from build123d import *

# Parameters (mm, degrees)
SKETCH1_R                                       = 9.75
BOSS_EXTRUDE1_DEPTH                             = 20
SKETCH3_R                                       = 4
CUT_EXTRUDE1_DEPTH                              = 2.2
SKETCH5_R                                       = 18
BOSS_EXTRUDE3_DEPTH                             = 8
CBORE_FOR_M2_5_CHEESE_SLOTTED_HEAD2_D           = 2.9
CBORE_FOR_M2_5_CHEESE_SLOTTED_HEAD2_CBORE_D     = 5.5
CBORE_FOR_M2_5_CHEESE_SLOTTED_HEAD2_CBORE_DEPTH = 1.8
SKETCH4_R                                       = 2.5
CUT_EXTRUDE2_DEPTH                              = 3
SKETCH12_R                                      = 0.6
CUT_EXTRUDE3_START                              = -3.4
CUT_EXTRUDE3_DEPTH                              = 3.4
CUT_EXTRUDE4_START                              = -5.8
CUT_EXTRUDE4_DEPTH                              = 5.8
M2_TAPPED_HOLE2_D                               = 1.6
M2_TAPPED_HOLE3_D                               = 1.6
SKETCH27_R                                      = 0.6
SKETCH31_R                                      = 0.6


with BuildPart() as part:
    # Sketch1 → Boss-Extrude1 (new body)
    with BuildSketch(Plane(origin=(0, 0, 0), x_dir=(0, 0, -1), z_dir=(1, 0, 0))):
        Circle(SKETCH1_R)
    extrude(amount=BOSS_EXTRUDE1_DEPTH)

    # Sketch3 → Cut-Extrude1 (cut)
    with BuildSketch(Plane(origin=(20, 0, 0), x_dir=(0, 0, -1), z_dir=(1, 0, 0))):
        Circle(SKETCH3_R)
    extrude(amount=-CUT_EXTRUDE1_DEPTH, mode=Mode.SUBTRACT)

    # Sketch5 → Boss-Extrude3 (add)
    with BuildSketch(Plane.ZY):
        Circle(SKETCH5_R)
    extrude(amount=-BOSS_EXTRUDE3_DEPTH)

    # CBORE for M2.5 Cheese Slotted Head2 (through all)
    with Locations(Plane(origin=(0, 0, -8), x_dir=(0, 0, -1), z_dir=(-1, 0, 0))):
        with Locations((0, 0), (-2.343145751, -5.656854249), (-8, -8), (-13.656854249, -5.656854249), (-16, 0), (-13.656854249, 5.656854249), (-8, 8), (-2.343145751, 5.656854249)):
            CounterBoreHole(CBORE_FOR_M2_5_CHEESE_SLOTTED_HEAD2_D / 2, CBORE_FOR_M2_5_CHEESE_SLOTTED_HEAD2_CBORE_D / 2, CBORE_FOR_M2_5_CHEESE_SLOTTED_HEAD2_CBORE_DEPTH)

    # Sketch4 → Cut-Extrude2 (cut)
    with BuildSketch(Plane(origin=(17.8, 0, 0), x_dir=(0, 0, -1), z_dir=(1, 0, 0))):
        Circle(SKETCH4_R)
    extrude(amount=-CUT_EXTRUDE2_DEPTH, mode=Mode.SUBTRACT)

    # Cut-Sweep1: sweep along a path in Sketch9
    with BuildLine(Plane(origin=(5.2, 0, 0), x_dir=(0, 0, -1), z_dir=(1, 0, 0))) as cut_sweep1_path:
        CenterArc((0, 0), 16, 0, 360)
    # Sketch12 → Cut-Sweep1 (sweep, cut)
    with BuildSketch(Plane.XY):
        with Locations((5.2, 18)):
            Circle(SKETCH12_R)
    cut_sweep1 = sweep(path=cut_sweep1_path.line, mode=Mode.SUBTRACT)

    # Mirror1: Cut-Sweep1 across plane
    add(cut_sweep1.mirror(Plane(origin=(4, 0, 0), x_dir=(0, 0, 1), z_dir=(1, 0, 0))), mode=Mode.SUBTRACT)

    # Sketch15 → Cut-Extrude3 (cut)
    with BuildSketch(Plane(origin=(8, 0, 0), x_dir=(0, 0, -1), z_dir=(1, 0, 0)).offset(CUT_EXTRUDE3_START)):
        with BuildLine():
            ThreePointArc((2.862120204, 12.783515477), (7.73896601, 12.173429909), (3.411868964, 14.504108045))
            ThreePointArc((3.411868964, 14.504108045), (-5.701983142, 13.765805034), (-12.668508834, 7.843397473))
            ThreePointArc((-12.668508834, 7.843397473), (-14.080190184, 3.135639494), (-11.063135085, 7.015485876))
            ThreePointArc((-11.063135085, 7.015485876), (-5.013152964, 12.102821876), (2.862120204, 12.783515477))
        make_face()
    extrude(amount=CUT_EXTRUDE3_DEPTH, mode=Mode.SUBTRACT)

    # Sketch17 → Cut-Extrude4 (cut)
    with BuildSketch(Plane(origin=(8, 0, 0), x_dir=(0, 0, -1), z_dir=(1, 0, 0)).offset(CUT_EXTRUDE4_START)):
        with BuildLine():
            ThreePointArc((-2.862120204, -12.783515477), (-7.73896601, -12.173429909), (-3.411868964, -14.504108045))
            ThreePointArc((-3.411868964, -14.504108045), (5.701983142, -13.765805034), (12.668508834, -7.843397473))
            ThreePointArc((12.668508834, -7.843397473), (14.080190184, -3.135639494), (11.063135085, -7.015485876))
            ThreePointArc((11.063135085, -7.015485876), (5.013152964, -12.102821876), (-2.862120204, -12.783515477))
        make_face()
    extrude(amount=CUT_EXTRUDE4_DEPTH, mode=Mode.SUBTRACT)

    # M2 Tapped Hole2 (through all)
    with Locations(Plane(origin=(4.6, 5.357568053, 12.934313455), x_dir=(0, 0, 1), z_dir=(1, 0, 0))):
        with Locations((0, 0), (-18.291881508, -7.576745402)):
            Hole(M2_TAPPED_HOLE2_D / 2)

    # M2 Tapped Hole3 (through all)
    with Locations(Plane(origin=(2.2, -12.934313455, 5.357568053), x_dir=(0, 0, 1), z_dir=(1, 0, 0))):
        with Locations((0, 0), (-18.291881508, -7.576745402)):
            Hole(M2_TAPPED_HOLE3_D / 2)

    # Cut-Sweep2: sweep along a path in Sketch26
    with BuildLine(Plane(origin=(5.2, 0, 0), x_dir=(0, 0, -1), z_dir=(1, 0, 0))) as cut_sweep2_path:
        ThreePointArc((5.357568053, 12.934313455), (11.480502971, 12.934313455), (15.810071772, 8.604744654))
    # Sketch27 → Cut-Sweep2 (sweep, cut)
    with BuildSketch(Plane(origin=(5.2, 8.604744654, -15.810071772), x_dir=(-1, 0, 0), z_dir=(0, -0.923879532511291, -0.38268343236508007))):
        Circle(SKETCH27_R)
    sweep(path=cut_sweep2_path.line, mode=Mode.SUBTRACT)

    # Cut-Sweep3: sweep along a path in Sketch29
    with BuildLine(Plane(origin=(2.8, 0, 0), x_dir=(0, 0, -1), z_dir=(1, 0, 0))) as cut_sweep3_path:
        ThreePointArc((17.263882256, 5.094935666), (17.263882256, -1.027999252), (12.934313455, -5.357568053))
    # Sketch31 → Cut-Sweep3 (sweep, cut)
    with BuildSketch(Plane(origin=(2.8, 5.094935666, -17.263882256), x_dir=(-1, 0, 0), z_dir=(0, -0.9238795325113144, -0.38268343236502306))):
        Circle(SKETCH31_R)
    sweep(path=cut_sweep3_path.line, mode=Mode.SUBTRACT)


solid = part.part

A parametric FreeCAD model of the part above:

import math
import FreeCAD as App
import Part
import Sketcher
Q = App.Units.Quantity

doc = App.newDocument("Part")
body = doc.addObject("PartDesign::Body", "Body")

# Sketch on YZ plane
sketch1 = body.newObject("Sketcher::SketchObject", "Sketch")
sketch1.AttachmentSupport = (doc.getObject("YZ_Plane"), [""])
sketch1.MapMode = "FlatFace"
sketch1.addGeometry(Part.Circle(App.Vector(0, 0, 0), App.Vector(0, 0, 1), 10), False)
sketch1.addConstraint([
    Sketcher.Constraint("Coincident", 0, 3, -1, 1),
    Sketcher.Constraint("Diameter", 0, Q("19.5 mm")),
])
pad1 = body.newObject("PartDesign::Pad", "Pad")
pad1.Profile = sketch1
pad1.Length = 20

# Sketch on YZ plane
sketch2 = body.newObject("Sketcher::SketchObject", "Sketch001")
sketch2.AttachmentSupport = (doc.getObject("YZ_Plane"), [""])
sketch2.MapMode = "FlatFace"
sketch2.AttachmentOffset = App.Placement(App.Vector(0, 0, 20), App.Rotation())
sketch2.addGeometry(Part.Circle(App.Vector(0, 0, 0), App.Vector(0, 0, 1), 4), False)
sketch2.addConstraint([
    Sketcher.Constraint("Coincident", 0, 3, -1, 1),
    Sketcher.Constraint("Diameter", 0, Q("8 mm")),
])
pocket1 = body.newObject("PartDesign::Pocket", "Pocket")
pocket1.Profile = sketch2
pocket1.Length = 2.2

# Sketch on YZ plane
sketch3 = body.newObject("Sketcher::SketchObject", "Sketch002")
sketch3.AttachmentSupport = (doc.getObject("YZ_Plane"), [""])
sketch3.MapMode = "FlatFace"
sketch3.addGeometry(Part.Circle(App.Vector(0, 0, 0), App.Vector(0, 0, 1), 18), False)
sketch3.addConstraint([
    Sketcher.Constraint("Coincident", 0, 3, -1, 1),
    Sketcher.Constraint("Diameter", 0, Q("36 mm")),
])
pad2 = body.newObject("PartDesign::Pad", "Pad001")
pad2.Profile = sketch3
pad2.Length = 8

# Sketch on YZ plane
sketch4 = body.newObject("Sketcher::SketchObject", "Sketch003")
sketch4.AttachmentSupport = (doc.getObject("YZ_Plane"), [""])
sketch4.MapMode = "FlatFace"
sketch4.addGeometry([
    Part.Circle(App.Vector(0, -8, 0), App.Vector(0, 0, 1), 1.4),  # 0
    Part.Circle(App.Vector(5.7, -5.7, 0), App.Vector(0, 0, 1), 1.4),  # 1
    Part.Circle(App.Vector(8, 0, 0), App.Vector(0, 0, 1), 1.4),  # 2
    Part.Circle(App.Vector(5.7, 5.7, 0), App.Vector(0, 0, 1), 1.4),  # 3
    Part.Circle(App.Vector(0, 8, 0), App.Vector(0, 0, 1), 1.4),  # 4
    Part.Circle(App.Vector(-5.7, 5.7, 0), App.Vector(0, 0, 1), 1.4),  # 5
    Part.Circle(App.Vector(-8, 0, 0), App.Vector(0, 0, 1), 1.4),  # 6
    Part.Circle(App.Vector(-5.7, -5.7, 0), App.Vector(0, 0, 1), 1.4),  # 7
], False)
sketch4.addConstraint([
    Sketcher.Constraint("Equal", 0, 1),
    Sketcher.Constraint("Equal", 1, 2),
    Sketcher.Constraint("Equal", 2, 3),
    Sketcher.Constraint("Equal", 3, 4),
    Sketcher.Constraint("Equal", 4, 5),
    Sketcher.Constraint("Equal", 5, 6),
    Sketcher.Constraint("Equal", 6, 7),
    Sketcher.Constraint("Symmetric", 0, 3, 4, 3, -1, 1),
    Sketcher.Constraint("Symmetric", 1, 3, 5, 3, -1, 1),
    Sketcher.Constraint("Symmetric", 2, 3, 6, 3, -1, 1),
    Sketcher.Constraint("Symmetric", 3, 3, 7, 3, -1, 1),
    Sketcher.Constraint("Symmetric", 3, 3, 5, 3, -2),
    Sketcher.Constraint("PointOnObject", 0, 3, -2),
    Sketcher.Constraint("PointOnObject", 2, 3, -1),
    Sketcher.Constraint("Diameter", 0, Q("2.9 mm")),
    Sketcher.Constraint("DistanceY", 0, 3, -1, 1, Q("8 mm")),
    Sketcher.Constraint("DistanceX", -1, 1, 2, 3, Q("8 mm")),
    Sketcher.Constraint("DistanceY", 1, 3, 3, 3, Q("11.313708 mm")),
    Sketcher.Constraint("DistanceX", 5, 3, 3, 3, Q("11.313708 mm")),
])
doc.recompute()
hole = body.newObject("PartDesign::Hole", "Hole")
hole.Profile = sketch4
hole.ThreadType = "None"
hole.Diameter = 2.9
hole.DepthType = "ThroughAll"
hole.HoleCutType = "Counterbore"
hole.HoleCutDiameter = 5.5
hole.HoleCutDepth = 1.8
hole.Reversed = True

# Sketch on YZ plane
sketch5 = body.newObject("Sketcher::SketchObject", "Sketch004")
sketch5.AttachmentSupport = (doc.getObject("YZ_Plane"), [""])
sketch5.MapMode = "FlatFace"
sketch5.AttachmentOffset = App.Placement(App.Vector(0, 0, 17.8), App.Rotation())
sketch5.addGeometry(Part.Circle(App.Vector(0, 0, 0), App.Vector(0, 0, 1), 2.5), False)
sketch5.addConstraint([
    Sketcher.Constraint("Coincident", 0, 3, -1, 1),
    Sketcher.Constraint("Diameter", 0, Q("5 mm")),
])
pocket2 = body.newObject("PartDesign::Pocket", "Pocket001")
pocket2.Profile = sketch5
pocket2.Length = 3

# Sketch on XY plane
sketch6 = body.newObject("Sketcher::SketchObject", "Sketch005")
sketch6.AttachmentSupport = (doc.getObject("XY_Plane"), [""])
sketch6.MapMode = "FlatFace"
sketch6.addGeometry(Part.Circle(App.Vector(5.2, 18, 0), App.Vector(0, 0, 1), 0.6), False)
sketch6.addConstraint([
    Sketcher.Constraint("Diameter", 0, Q("1.2 mm")),
    Sketcher.Constraint("DistanceY", -1, 1, 0, 3, Q("18 mm")),
    Sketcher.Constraint("DistanceX", -1, 1, 0, 3, Q("5.2 mm")),
])

# Sketch on YZ plane
sketch7 = body.newObject("Sketcher::SketchObject", "Sketch006")
sketch7.AttachmentSupport = (doc.getObject("YZ_Plane"), [""])
sketch7.MapMode = "FlatFace"
sketch7.AttachmentOffset = App.Placement(App.Vector(0, 0, 5.2), App.Rotation())
sketch7.addGeometry(Part.Circle(App.Vector(0, 0, 0), App.Vector(0, 0, 1), 16), False)
sketch7.addConstraint([
    Sketcher.Constraint("Coincident", 0, 3, -1, 1),
    Sketcher.Constraint("Diameter", 0, Q("32 mm")),
])
doc.recompute()

subtractivepipe = body.newObject("PartDesign::SubtractivePipe", "SubtractivePipe")
subtractivepipe.Profile = sketch6
subtractivepipe.Spine = (sketch7, ["Edge1"])
doc.recompute()

datumplane = body.newObject("PartDesign::Plane", "DatumPlane")
datumplane.AttachmentSupport = (doc.getObject("YZ_Plane"), [""])
datumplane.MapMode = "FlatFace"
datumplane.AttachmentOffset = App.Placement(App.Vector(0, 0, 4), App.Rotation())
mirrored = body.newObject("PartDesign::Mirrored", "Mirrored")
mirrored.Originals = [subtractivepipe]
mirrored.MirrorPlane = (datumplane, [""])
body.Tip = mirrored

# Sketch on YZ plane
sketch8 = body.newObject("Sketcher::SketchObject", "Sketch007")
sketch8.AttachmentSupport = (doc.getObject("YZ_Plane"), [""])
sketch8.MapMode = "FlatFace"
sketch8.AttachmentOffset = App.Placement(App.Vector(0, 0, 4.6), App.Rotation())
sketch8.addGeometry([
    Part.ArcOfCircle(Part.Circle(App.Vector(12.9, -5.4, 0), App.Vector(0, 0, 1), 2.5), math.radians(93), math.radians(411)),
    Part.ArcOfCircle(Part.Circle(App.Vector(0, 0, 0), App.Vector(0, 0, 1), 14.9), math.radians(-13), math.radians(58)),
    Part.ArcOfCircle(Part.Circle(App.Vector(5.4, 12.9, 0), App.Vector(0, 0, 1), 2.5), math.radians(-6), math.radians(312)),
    Part.ArcOfCircle(Part.Circle(App.Vector(0, 0, 0), App.Vector(0, 0, 1), 13.1), math.radians(-13), math.radians(58)),
], False)
sketch8.addConstraint([
    Sketcher.Constraint("Coincident", 0, 2, 1, 1),
    Sketcher.Constraint("Coincident", 1, 2, 2, 1),
    Sketcher.Constraint("Coincident", 2, 2, 3, 2),
    Sketcher.Constraint("Coincident", 3, 1, 0, 1),
    Sketcher.Constraint("Coincident", 1, 3, -1, 1),
    Sketcher.Constraint("Coincident", 3, 3, -1, 1),
    Sketcher.Constraint("Equal", 0, 2),
    Sketcher.Constraint("Radius", 0, Q("2.5 mm")),
    Sketcher.Constraint("Radius", 1, Q("14.9 mm")),
    Sketcher.Constraint("Radius", 3, Q("13.1 mm")),
    Sketcher.Constraint("DistanceY", 0, 3, 0, 2, Q("1.945699 mm")),
    Sketcher.Constraint("DistanceY", 0, 3, -1, 1, Q("5.357568 mm")),
    Sketcher.Constraint("DistanceX", -1, 1, 2, 3, Q("5.357568 mm")),
    Sketcher.Constraint("DistanceY", -1, 1, 1, 2, Q("12.668509 mm")),
])
pocket3 = body.newObject("PartDesign::Pocket", "Pocket002")
pocket3.Profile = sketch8
pocket3.Length = 3.4
pocket3.Reversed = True

# Sketch on YZ plane
sketch9 = body.newObject("Sketcher::SketchObject", "Sketch008")
sketch9.AttachmentSupport = (doc.getObject("YZ_Plane"), [""])
sketch9.MapMode = "FlatFace"
sketch9.AttachmentOffset = App.Placement(App.Vector(0, 0, 2.2), App.Rotation())
sketch9.addGeometry([
    Part.ArcOfCircle(Part.Circle(App.Vector(-12.9, 5.4, 0), App.Vector(0, 0, 1), 2.5), math.radians(-87), math.radians(231)),
    Part.ArcOfCircle(Part.Circle(App.Vector(0, 0, 0), App.Vector(0, 0, 1), 14.9), math.radians(167), math.radians(238)),
    Part.ArcOfCircle(Part.Circle(App.Vector(-5.4, -12.9, 0), App.Vector(0, 0, 1), 2.5), math.radians(174), math.radians(492)),
    Part.ArcOfCircle(Part.Circle(App.Vector(0, 0, 0), App.Vector(0, 0, 1), 13.1), math.radians(167), math.radians(238)),
], False)
sketch9.addConstraint([
    Sketcher.Constraint("Coincident", 0, 2, 1, 1),
    Sketcher.Constraint("Coincident", 1, 2, 2, 1),
    Sketcher.Constraint("Coincident", 2, 2, 3, 2),
    Sketcher.Constraint("Coincident", 3, 1, 0, 1),
    Sketcher.Constraint("Coincident", 1, 3, -1, 1),
    Sketcher.Constraint("Coincident", 3, 3, -1, 1),
    Sketcher.Constraint("Equal", 0, 2),
    Sketcher.Constraint("Radius", 0, Q("2.5 mm")),
    Sketcher.Constraint("Radius", 1, Q("14.9 mm")),
    Sketcher.Constraint("Radius", 3, Q("13.1 mm")),
    Sketcher.Constraint("DistanceY", 0, 2, 0, 3, Q("1.945699 mm")),
    Sketcher.Constraint("DistanceY", -1, 1, 0, 3, Q("5.357568 mm")),
    Sketcher.Constraint("DistanceX", 2, 3, -1, 1, Q("5.357568 mm")),
    Sketcher.Constraint("DistanceY", 1, 2, -1, 1, Q("12.668509 mm")),
])
pocket4 = body.newObject("PartDesign::Pocket", "Pocket003")
pocket4.Profile = sketch9
pocket4.Length = 5.8
pocket4.Reversed = True

# Sketch on YZ plane
sketch10 = body.newObject("Sketcher::SketchObject", "Sketch009")
sketch10.AttachmentSupport = (doc.getObject("YZ_Plane"), [""])
sketch10.MapMode = "FlatFace"
sketch10.AttachmentOffset = App.Placement(App.Vector(0, 0, 4.6), App.Rotation())
sketch10.addGeometry([
    Part.Circle(App.Vector(5.4, 12.9, 0), App.Vector(0, 0, 1), 0.8),
    Part.Circle(App.Vector(12.9, -5.4, 0), App.Vector(0, 0, 1), 0.8),
], False)
sketch10.addConstraint([
    Sketcher.Constraint("Equal", 0, 1),
    Sketcher.Constraint("Diameter", 0, Q("1.6 mm")),
    Sketcher.Constraint("DistanceX", -1, 1, 0, 3, Q("5.357568 mm")),
    Sketcher.Constraint("DistanceY", 1, 3, -1, 1, Q("5.357568 mm")),
    Sketcher.Constraint("DistanceY", 1, 3, 0, 3, Q("18.291882 mm")),
    Sketcher.Constraint("DistanceX", -1, 1, 1, 3, Q("12.934313 mm")),
])
doc.recompute()
hole2 = body.newObject("PartDesign::Hole", "Hole001")
hole2.Profile = sketch10
hole2.ThreadType = "None"
hole2.Diameter = 1.6
hole2.DepthType = "ThroughAll"

# Sketch on YZ plane
sketch11 = body.newObject("Sketcher::SketchObject", "Sketch010")
sketch11.AttachmentSupport = (doc.getObject("YZ_Plane"), [""])
sketch11.MapMode = "FlatFace"
sketch11.AttachmentOffset = App.Placement(App.Vector(0, 0, 2.2), App.Rotation())
sketch11.addGeometry([
    Part.Circle(App.Vector(-12.9, 5.4, 0), App.Vector(0, 0, 1), 0.8),
    Part.Circle(App.Vector(-5.4, -12.9, 0), App.Vector(0, 0, 1), 0.8),
], False)
sketch11.addConstraint([
    Sketcher.Constraint("Equal", 0, 1),
    Sketcher.Constraint("Diameter", 0, Q("1.6 mm")),
    Sketcher.Constraint("DistanceY", -1, 1, 0, 3, Q("5.357568 mm")),
    Sketcher.Constraint("DistanceX", 1, 3, -1, 1, Q("5.357568 mm")),
    Sketcher.Constraint("DistanceY", 1, 3, 0, 3, Q("18.291882 mm")),
    Sketcher.Constraint("DistanceX", 0, 3, -1, 1, Q("12.934313 mm")),
])
doc.recompute()
hole3 = body.newObject("PartDesign::Hole", "Hole002")
hole3.Profile = sketch11
hole3.ThreadType = "None"
hole3.Diameter = 1.6
hole3.DepthType = "ThroughAll"

# Sketch on an angled plane
sketch12 = body.newObject("Sketcher::SketchObject", "Sketch011")
sketch12.Placement = App.Placement(App.Vector(5.2, 8.604745, -15.810072), App.Rotation(App.Vector(-1, 0, 0), App.Vector(0, 0.382683432, -0.923879533), App.Vector(0, -0.923879533, -0.382683432), "ZXY"))
sketch12.addGeometry(Part.Circle(App.Vector(0, 0, 0), App.Vector(0, 0, 1), 0.6), False)
sketch12.addConstraint([
    Sketcher.Constraint("Coincident", 0, 3, -1, 1),
    Sketcher.Constraint("Diameter", 0, Q("1.2 mm")),
])

# Sketch on YZ plane
sketch13 = body.newObject("Sketcher::SketchObject", "Sketch012")
sketch13.AttachmentSupport = (doc.getObject("YZ_Plane"), [""])
sketch13.MapMode = "FlatFace"
sketch13.AttachmentOffset = App.Placement(App.Vector(0, 0, 5.2), App.Rotation())
sketch13.addGeometry(Part.ArcOfCircle(Part.Circle(App.Vector(6, -8, 0), App.Vector(0, 0, 1), 8), math.radians(-67), math.radians(23)), False)
sketch13.addConstraint([
    Sketcher.Constraint("Radius", 0, Q("8 mm")),
    Sketcher.Constraint("DistanceY", 0, 1, -1, 1, Q("15.810072 mm")),
    Sketcher.Constraint("DistanceY", 0, 2, -1, 1, Q("5.357568 mm")),
    Sketcher.Constraint("DistanceX", 0, 1, 0, 2, Q("4.329569 mm")),
    Sketcher.Constraint("DistanceX", -1, 1, 0, 3, Q("5.543277 mm")),
])
doc.recompute()

subtractivepipe2 = body.newObject("PartDesign::SubtractivePipe", "SubtractivePipe001")
subtractivepipe2.Profile = sketch12
subtractivepipe2.Spine = (sketch13, ["Edge1"])

# Sketch on an angled plane
sketch14 = body.newObject("Sketcher::SketchObject", "Sketch013")
sketch14.Placement = App.Placement(App.Vector(2.8, 5.094936, -17.263882), App.Rotation(App.Vector(-1, 0, 0), App.Vector(0, 0.382683432, -0.923879533), App.Vector(0, -0.923879533, -0.382683432), "ZXY"))
sketch14.addGeometry(Part.Circle(App.Vector(0, 0, 0), App.Vector(0, 0, 1), 0.6), False)
sketch14.addConstraint([
    Sketcher.Constraint("Coincident", 0, 3, -1, 1),
    Sketcher.Constraint("Diameter", 0, Q("1.2 mm")),
])

# Sketch on YZ plane
sketch15 = body.newObject("Sketcher::SketchObject", "Sketch014")
sketch15.AttachmentSupport = (doc.getObject("YZ_Plane"), [""])
sketch15.MapMode = "FlatFace"
sketch15.AttachmentOffset = App.Placement(App.Vector(0, 0, 2.8), App.Rotation())
sketch15.addGeometry(Part.ArcOfCircle(Part.Circle(App.Vector(2, -10, 0), App.Vector(0, 0, 1), 8), math.radians(-157), math.radians(-67)), False)
sketch15.addConstraint([
    Sketcher.Constraint("Radius", 0, Q("8 mm")),
    Sketcher.Constraint("DistanceX", -1, 1, 0, 3, Q("2.033468 mm")),
    Sketcher.Constraint("DistanceX", 0, 1, -1, 1, Q("5.357568 mm")),
    Sketcher.Constraint("DistanceY", 0, 2, 0, 1, Q("4.329569 mm")),
    Sketcher.Constraint("DistanceY", 0, 3, -1, 1, Q("9.872846 mm")),
])
doc.recompute()

subtractivepipe3 = body.newObject("PartDesign::SubtractivePipe", "SubtractivePipe002")
subtractivepipe3.Profile = sketch14
subtractivepipe3.Spine = (sketch15, ["Edge1"])

doc.recompute()
